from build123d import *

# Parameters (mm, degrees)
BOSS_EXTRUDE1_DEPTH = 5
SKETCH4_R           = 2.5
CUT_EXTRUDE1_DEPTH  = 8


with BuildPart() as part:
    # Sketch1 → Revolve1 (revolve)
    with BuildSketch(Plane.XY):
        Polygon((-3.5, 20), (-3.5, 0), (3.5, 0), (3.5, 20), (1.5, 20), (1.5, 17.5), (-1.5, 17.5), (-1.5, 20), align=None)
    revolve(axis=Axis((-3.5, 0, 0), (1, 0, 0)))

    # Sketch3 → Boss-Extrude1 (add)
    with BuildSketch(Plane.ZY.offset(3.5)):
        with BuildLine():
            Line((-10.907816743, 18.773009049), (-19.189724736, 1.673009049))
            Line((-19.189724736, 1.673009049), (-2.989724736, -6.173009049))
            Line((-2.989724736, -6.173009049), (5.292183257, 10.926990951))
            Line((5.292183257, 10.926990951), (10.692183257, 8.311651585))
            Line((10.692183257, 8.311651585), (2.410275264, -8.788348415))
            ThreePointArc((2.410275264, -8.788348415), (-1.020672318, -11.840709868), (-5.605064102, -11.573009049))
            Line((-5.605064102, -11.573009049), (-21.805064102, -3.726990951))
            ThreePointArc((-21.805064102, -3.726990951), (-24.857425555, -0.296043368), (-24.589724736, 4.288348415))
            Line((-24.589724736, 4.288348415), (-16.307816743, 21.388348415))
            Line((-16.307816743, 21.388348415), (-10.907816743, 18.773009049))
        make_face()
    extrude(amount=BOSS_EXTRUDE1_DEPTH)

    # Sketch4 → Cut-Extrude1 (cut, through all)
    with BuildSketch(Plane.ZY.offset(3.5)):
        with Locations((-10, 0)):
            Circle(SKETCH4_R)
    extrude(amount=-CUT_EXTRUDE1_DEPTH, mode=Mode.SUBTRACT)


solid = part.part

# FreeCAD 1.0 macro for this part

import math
import FreeCAD as App
import Part
import Sketcher

doc = App.newDocument("Part")
body = doc.addObject("PartDesign::Body", "Body")

sketch1 = body.newObject("Sketcher::SketchObject", "Sketch")
sketch1.AttachmentSupport = (doc.getObject("XY_Plane"), [""])
sketch1.MapMode = "FlatFace"
sketch1.addGeometry([
    Part.LineSegment(App.Vector(-3.5, 20, 0), App.Vector(-3.5, 0, 0)),
    Part.LineSegment(App.Vector(-3.5, 0, 0), App.Vector(3.5, 0, 0)),
    Part.LineSegment(App.Vector(3.5, 0, 0), App.Vector(3.5, 20, 0)),
    Part.LineSegment(App.Vector(3.5, 20, 0), App.Vector(1.5, 20, 0)),
    Part.LineSegment(App.Vector(1.5, 20, 0), App.Vector(1.5, 17.5, 0)),
    Part.LineSegment(App.Vector(1.5, 17.5, 0), App.Vector(-1.5, 17.5, 0)),
    Part.LineSegment(App.Vector(-1.5, 17.5, 0), App.Vector(-1.5, 20, 0)),
    Part.LineSegment(App.Vector(-1.5, 20, 0), App.Vector(-3.5, 20, 0)),
], False)
sketch1.addConstraint([
    Sketcher.Constraint("Coincident", 0, 2, 1, 1),
    Sketcher.Constraint("Coincident", 1, 2, 2, 1),
    Sketcher.Constraint("Coincident", 2, 2, 3, 1),
    Sketcher.Constraint("Coincident", 3, 2, 4, 1),
    Sketcher.Constraint("Coincident", 4, 2, 5, 1),
    Sketcher.Constraint("Coincident", 5, 2, 6, 1),
    Sketcher.Constraint("Coincident", 6, 2, 7, 1),
    Sketcher.Constraint("Coincident", 7, 2, 0, 1),
    Sketcher.Constraint("Vertical", 0),
    Sketcher.Constraint("Horizontal", 1),
    Sketcher.Constraint("Vertical", 2),
    Sketcher.Constraint("Horizontal", 3),
    Sketcher.Constraint("Vertical", 4),
    Sketcher.Constraint("Horizontal", 5),
    Sketcher.Constraint("Vertical", 6),
    Sketcher.Constraint("Horizontal", 7),
    Sketcher.Constraint("Symmetric", 0, 2, 1, 2, -1, 1),
    Sketcher.Constraint("Symmetric", 3, 2, 6, 2, -2),
    Sketcher.Constraint("DistanceX", 1, 1, 1, 2, 7.0),
    Sketcher.Constraint("DistanceX", 3, 2, 3, 1, 2.0),
    Sketcher.Constraint("DistanceY", 0, 2, 0, 1, 20.0),
    Sketcher.Constraint("DistanceY", 4, 2, 4, 1, 2.5),
])
revolution = body.newObject("PartDesign::Revolution", "Revolution")
revolution.Profile = sketch1
revolution.ReferenceAxis = (sketch1, ["H_Axis"])
revolution.Angle = 360

sketch2 = body.newObject("Sketcher::SketchObject", "Sketch001")
sketch2.AttachmentSupport = (doc.getObject("YZ_Plane"), [""])
sketch2.MapMode = "FlatFace"
sketch2.AttachmentOffset = App.Placement(App.Vector(0, 0, -3.5), App.Rotation())
sketch2.addGeometry([
    Part.LineSegment(App.Vector(2, -19, 0), App.Vector(19, -11, 0)),
    Part.LineSegment(App.Vector(19, -11, 0), App.Vector(21, -16, 0)),
    Part.LineSegment(App.Vector(21, -16, 0), App.Vector(4, -25, 0)),
    Part.ArcOfCircle(Part.Circle(App.Vector(2, -19, 0), App.Vector(0, 0, 1), 6), math.radians(-154), math.radians(-64)),
    Part.LineSegment(App.Vector(-4, -22, 0), App.Vector(-12, -6, 0)),
    Part.ArcOfCircle(Part.Circle(App.Vector(-6, -3, 0), App.Vector(0, 0, 1), 6), math.radians(116), math.radians(206)),
    Part.LineSegment(App.Vector(-9, 2, 0), App.Vector(8, 11, 0)),
    Part.LineSegment(App.Vector(8, 11, 0), App.Vector(11, 5, 0)),
    Part.LineSegment(App.Vector(11, 5, 0), App.Vector(-6, -3, 0)),
    Part.LineSegment(App.Vector(-6, -3, 0), App.Vector(2, -19, 0)),
], False)
sketch2.addConstraint([
    Sketcher.Constraint("Coincident", 0, 2, 1, 1),
    Sketcher.Constraint("Coincident", 1, 2, 2, 1),
    Sketcher.Constraint("Tangent", 2, 2, 3, 2),
    Sketcher.Constraint("Tangent", 3, 1, 4, 1),
    Sketcher.Constraint("Tangent", 4, 2, 5, 2),
    Sketcher.Constraint("Tangent", 5, 1, 6, 1),
    Sketcher.Constraint("Coincident", 6, 2, 7, 1),
    Sketcher.Constraint("Coincident", 7, 2, 8, 1),
    Sketcher.Constraint("Coincident", 8, 2, 9, 1),
    Sketcher.Constraint("Coincident", 9, 2, 0, 1),
    Sketcher.Constraint("Coincident", 8, 2, 5, 3),
    Sketcher.Constraint("Coincident", 9, 2, 3, 3),
    Sketcher.Constraint("Equal", 3, 5),
    Sketcher.Constraint("Perpendicular", 0, 1),
    Sketcher.Constraint("Perpendicular", 1, 2),
    Sketcher.Constraint("Perpendicular", 2, 4),
    Sketcher.Constraint("Perpendicular", 4, 6),
    Sketcher.Constraint("Perpendicular", 6, 7),
    Sketcher.Constraint("Perpendicular", 7, 8),
    Sketcher.Constraint("Equal", 2, 6),
    Sketcher.Constraint("Radius", 3, 6.0),
    Sketcher.Constraint("Distance", 0, 19.0),
    Sketcher.Constraint("Distance", 4, 18.0),
    Sketcher.Constraint("DistanceY", 2, 2, 5, 1, 27.0),
    Sketcher.Constraint("DistanceX", -1, 1, 3, 3, 1.673009),
    Sketcher.Constraint("DistanceY", 3, 3, -1, 1, 19.189725),
])
pad1 = body.newObject("PartDesign::Pad", "Pad")
pad1.Profile = sketch2
pad1.Length = 5
pad1.Reversed = True

sketch3 = body.newObject("Sketcher::SketchObject", "Sketch002")
sketch3.AttachmentSupport = (doc.getObject("YZ_Plane"), [""])
sketch3.MapMode = "FlatFace"
sketch3.AttachmentOffset = App.Placement(App.Vector(0, 0, -3.5), App.Rotation())
sketch3.addGeometry(Part.Circle(App.Vector(0, -10, 0), App.Vector(0, 0, 1), 2.5), False)
sketch3.addConstraint([
    Sketcher.Constraint("PointOnObject", 0, 3, -2),
    Sketcher.Constraint("Diameter", 0, 5.0),
    Sketcher.Constraint("DistanceY", 0, 3, -1, 1, 10.0),
])
pocket1 = body.newObject("PartDesign::Pocket", "Pocket")
pocket1.Profile = sketch3
pocket1.Type = "ThroughAll"
pocket1.Reversed = True

doc.recompute()
